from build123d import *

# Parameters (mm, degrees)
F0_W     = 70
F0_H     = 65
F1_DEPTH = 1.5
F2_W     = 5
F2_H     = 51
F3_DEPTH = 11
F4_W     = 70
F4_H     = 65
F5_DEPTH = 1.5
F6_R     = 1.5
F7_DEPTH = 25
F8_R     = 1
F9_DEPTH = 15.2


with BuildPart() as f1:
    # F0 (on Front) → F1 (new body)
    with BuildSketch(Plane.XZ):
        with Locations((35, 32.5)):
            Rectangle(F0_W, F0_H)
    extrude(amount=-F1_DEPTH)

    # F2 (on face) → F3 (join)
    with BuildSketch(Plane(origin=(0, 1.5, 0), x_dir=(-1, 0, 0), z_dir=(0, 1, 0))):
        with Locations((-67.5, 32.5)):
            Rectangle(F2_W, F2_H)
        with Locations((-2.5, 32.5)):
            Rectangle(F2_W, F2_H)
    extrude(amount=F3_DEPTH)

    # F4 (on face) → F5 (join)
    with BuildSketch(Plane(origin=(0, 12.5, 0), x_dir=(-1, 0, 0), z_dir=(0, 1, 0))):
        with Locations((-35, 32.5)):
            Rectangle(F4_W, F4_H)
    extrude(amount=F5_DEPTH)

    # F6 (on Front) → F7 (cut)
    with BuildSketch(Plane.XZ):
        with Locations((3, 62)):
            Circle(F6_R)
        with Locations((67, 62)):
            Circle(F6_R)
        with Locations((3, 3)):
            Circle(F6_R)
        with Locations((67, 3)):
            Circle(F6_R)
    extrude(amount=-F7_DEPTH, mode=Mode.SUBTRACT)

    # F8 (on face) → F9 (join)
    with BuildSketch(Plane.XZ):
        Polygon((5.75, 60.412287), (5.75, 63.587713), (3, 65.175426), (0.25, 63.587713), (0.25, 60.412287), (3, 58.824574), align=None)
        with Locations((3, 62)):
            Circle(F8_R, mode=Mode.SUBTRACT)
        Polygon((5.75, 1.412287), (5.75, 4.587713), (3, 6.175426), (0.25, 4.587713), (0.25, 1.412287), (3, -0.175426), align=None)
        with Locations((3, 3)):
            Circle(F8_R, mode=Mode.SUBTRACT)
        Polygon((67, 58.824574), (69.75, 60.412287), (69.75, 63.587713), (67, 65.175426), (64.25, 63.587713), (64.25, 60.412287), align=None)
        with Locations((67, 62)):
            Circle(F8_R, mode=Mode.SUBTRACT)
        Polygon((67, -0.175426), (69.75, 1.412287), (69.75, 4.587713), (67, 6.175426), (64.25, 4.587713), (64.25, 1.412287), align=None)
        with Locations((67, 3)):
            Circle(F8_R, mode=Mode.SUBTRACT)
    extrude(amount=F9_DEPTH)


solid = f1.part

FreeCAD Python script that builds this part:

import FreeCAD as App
import Part
import Sketcher

V = App.Vector
Q = App.Units.Quantity

doc = App.newDocument("Part")
body = doc.addObject("PartDesign::Body", "Body")

# Sketch on XZ plane
sketch1 = body.newObject("Sketcher::SketchObject", "Sketch")
sketch1.AttachmentSupport = (doc.getObject("XZ_Plane"), [""])
sketch1.MapMode = "FlatFace"
sketch1.addGeometry([
    Part.LineSegment(V(0, 65, 0), V(0, 0, 0)),
    Part.LineSegment(V(0, 0, 0), V(70, 0, 0)),
    Part.LineSegment(V(70, 0, 0), V(70, 65, 0)),
    Part.LineSegment(V(70, 65, 0), V(0, 65, 0)),
], False)
sketch1.addConstraint([
    Sketcher.Constraint("Coincident", 0, 2, 1, 1),
    Sketcher.Constraint("Coincident", 1, 2, 2, 1),
    Sketcher.Constraint("Coincident", 2, 2, 3, 1),
    Sketcher.Constraint("Coincident", 3, 2, 0, 1),
    Sketcher.Constraint("Vertical", 0),
    Sketcher.Constraint("Horizontal", 1),
    Sketcher.Constraint("Vertical", 2),
    Sketcher.Constraint("Horizontal", 3),
    Sketcher.Constraint("Coincident", 0, 2, -1, 1),
    Sketcher.Constraint("DistanceX", 1, 1, 1, 2, Q("70 mm")),
    Sketcher.Constraint("DistanceY", 0, 2, 0, 1, Q("65 mm")),
])
pad1 = body.newObject("PartDesign::Pad", "Pad")
pad1.Profile = sketch1
pad1.Length = 1.5
pad1.Reversed = True

# Sketch on XZ plane
sketch2 = body.newObject("Sketcher::SketchObject", "Sketch001")
sketch2.AttachmentSupport = (doc.getObject("XZ_Plane"), [""])
sketch2.MapMode = "FlatFace"
sketch2.AttachmentOffset = App.Placement(V(0, 0, -1.5), App.Rotation())
sketch2.addGeometry([
    Part.LineSegment(V(70, 58, 0), V(70, 7, 0)),  # 0
    Part.LineSegment(V(70, 7, 0), V(65, 7, 0)),  # 1
    Part.LineSegment(V(65, 7, 0), V(65, 58, 0)),  # 2
    Part.LineSegment(V(65, 58, 0), V(70, 58, 0)),  # 3
    Part.LineSegment(V(5, 58, 0), V(5, 7, 0)),  # 4
    Part.LineSegment(V(5, 7, 0), V(0, 7, 0)),  # 5
    Part.LineSegment(V(0, 7, 0), V(0, 58, 0)),  # 6
    Part.LineSegment(V(0, 58, 0), V(5, 58, 0)),  # 7
], False)
sketch2.addConstraint([
    Sketcher.Constraint("Coincident", 0, 2, 1, 1),
    Sketcher.Constraint("Coincident", 1, 2, 2, 1),
    Sketcher.Constraint("Coincident", 2, 2, 3, 1),
    Sketcher.Constraint("Coincident", 3, 2, 0, 1),
    Sketcher.Constraint("Coincident", 4, 2, 5, 1),
    Sketcher.Constraint("Coincident", 5, 2, 6, 1),
    Sketcher.Constraint("Coincident", 6, 2, 7, 1),
    Sketcher.Constraint("Coincident", 7, 2, 4, 1),
    Sketcher.Constraint("Vertical", 0),
    Sketcher.Constraint("Horizontal", 1),
    Sketcher.Constraint("Vertical", 2),
    Sketcher.Constraint("Horizontal", 3),
    Sketcher.Constraint("Vertical", 4),
    Sketcher.Constraint("Horizontal", 5),
    Sketcher.Constraint("Vertical", 6),
    Sketcher.Constraint("Horizontal", 7),
    Sketcher.Constraint("PointOnObject", 5, 2, -2),
    Sketcher.Constraint("Horizontal", 1, 2, 4, 2),
    Sketcher.Constraint("Horizontal", 3, 2, 6, 2),
    Sketcher.Constraint("Equal", 3, 5),
    Sketcher.Constraint("DistanceX", 1, 2, 1, 1, Q("5 mm")),
    Sketcher.Constraint("DistanceY", 0, 2, 0, 1, Q("51 mm")),
    Sketcher.Constraint("DistanceX", -1, 1, 0, 2, Q("70 mm")),
    Sketcher.Constraint("DistanceY", -1, 1, 0, 2, Q("7 mm")),
])
pad2 = body.newObject("PartDesign::Pad", "Pad001")
pad2.Profile = sketch2
pad2.Length = 11
pad2.Reversed = True

# Sketch on XZ plane
sketch3 = body.newObject("Sketcher::SketchObject", "Sketch002")
sketch3.AttachmentSupport = (doc.getObject("XZ_Plane"), [""])
sketch3.MapMode = "FlatFace"
sketch3.AttachmentOffset = App.Placement(V(0, 0, -12.5), App.Rotation())
sketch3.addGeometry([
    Part.LineSegment(V(70, 65, 0), V(70, 0, 0)),
    Part.LineSegment(V(70, 0, 0), V(0, 0, 0)),
    Part.LineSegment(V(0, 0, 0), V(0, 65, 0)),
    Part.LineSegment(V(0, 65, 0), V(70, 65, 0)),
], False)
sketch3.addConstraint([
    Sketcher.Constraint("Coincident", 0, 2, 1, 1),
    Sketcher.Constraint("Coincident", 1, 2, 2, 1),
    Sketcher.Constraint("Coincident", 2, 2, 3, 1),
    Sketcher.Constraint("Coincident", 3, 2, 0, 1),
    Sketcher.Constraint("Vertical", 0),
    Sketcher.Constraint("Horizontal", 1),
    Sketcher.Constraint("Vertical", 2),
    Sketcher.Constraint("Horizontal", 3),
    Sketcher.Constraint("Coincident", 1, 2, -1, 1),
    Sketcher.Constraint("DistanceX", 1, 2, 1, 1, Q("70 mm")),
    Sketcher.Constraint("DistanceY", 0, 2, 0, 1, Q("65 mm")),
])
pad3 = body.newObject("PartDesign::Pad", "Pad002")
pad3.Profile = sketch3
pad3.Length = 1.5
pad3.Reversed = True

# Sketch on XZ plane
sketch4 = body.newObject("Sketcher::SketchObject", "Sketch003")
sketch4.AttachmentSupport = (doc.getObject("XZ_Plane"), [""])
sketch4.MapMode = "FlatFace"
sketch4.addGeometry([
    Part.Circle(V(3, 62, 0), V(0, 0, 1), 1.5),
    Part.Circle(V(67, 62, 0), V(0, 0, 1), 1.5),
    Part.Circle(V(3, 3, 0), V(0, 0, 1), 1.5),
    Part.Circle(V(67, 3, 0), V(0, 0, 1), 1.5),
], False)
sketch4.addConstraint([
    Sketcher.Constraint("Equal", 0, 1),
    Sketcher.Constraint("Equal", 1, 2),
    Sketcher.Constraint("Equal", 2, 3),
    Sketcher.Constraint("Horizontal", 0, 3, 1, 3),
    Sketcher.Constraint("Horizontal", 2, 3, 3, 3),
    Sketcher.Constraint("Vertical", 0, 3, 2, 3),
    Sketcher.Constraint("Vertical", 1, 3, 3, 3),
    Sketcher.Constraint("Diameter", 0, Q("3 mm")),
    Sketcher.Constraint("DistanceX", -1, 1, 0, 3, Q("3 mm")),
    Sketcher.Constraint("DistanceY", -1, 1, 0, 3, Q("62 mm")),
    Sketcher.Constraint("DistanceX", -1, 1, 1, 3, Q("67 mm")),
    Sketcher.Constraint("DistanceY", -1, 1, 2, 3, Q("3 mm")),
])
pocket1 = body.newObject("PartDesign::Pocket", "Pocket")
pocket1.Profile = sketch4
pocket1.Length = 25

# Sketch on XZ plane
sketch5 = body.newObject("Sketcher::SketchObject", "Sketch004")
sketch5.AttachmentSupport = (doc.getObject("XZ_Plane"), [""])
sketch5.MapMode = "FlatFace"
sketch5.addGeometry([
    Part.LineSegment(V(5.8, 60.4, 0), V(5.8, 63.6, 0)),  # 0
    Part.LineSegment(V(5.8, 63.6, 0), V(3, 65.2, 0)),  # 1
    Part.LineSegment(V(3, 65.2, 0), V(0.2, 63.6, 0)),  # 2
    Part.LineSegment(V(0.2, 63.6, 0), V(0.2, 60.4, 0)),  # 3
    Part.LineSegment(V(0.2, 60.4, 0), V(3, 58.8, 0)),  # 4
    Part.LineSegment(V(3, 58.8, 0), V(5.8, 60.4, 0)),  # 5
    Part.Circle(V(3, 62, 0), V(0, 0, 1), 1),  # 6
    Part.LineSegment(V(5.8, 1.4, 0), V(5.8, 4.6, 0)),  # 7
    Part.LineSegment(V(5.8, 4.6, 0), V(3, 6.2, 0)),  # 8
    Part.LineSegment(V(3, 6.2, 0), V(0.2, 4.6, 0)),  # 9
    Part.LineSegment(V(0.2, 4.6, 0), V(0.2, 1.4, 0)),  # 10
    Part.LineSegment(V(0.2, 1.4, 0), V(3, -0.2, 0)),  # 11
    Part.LineSegment(V(3, -0.2, 0), V(5.8, 1.4, 0)),  # 12
    Part.Circle(V(3, 3, 0), V(0, 0, 1), 1),  # 13
    Part.LineSegment(V(67, 58.8, 0), V(69.8, 60.4, 0)),  # 14
    Part.LineSegment(V(69.8, 60.4, 0), V(69.8, 63.6, 0)),  # 15
    Part.LineSegment(V(69.8, 63.6, 0), V(67, 65.2, 0)),  # 16
    Part.LineSegment(V(67, 65.2, 0), V(64.2, 63.6, 0)),  # 17
    Part.LineSegment(V(64.2, 63.6, 0), V(64.2, 60.4, 0)),  # 18
    Part.LineSegment(V(64.2, 60.4, 0), V(67, 58.8, 0)),  # 19
    Part.Circle(V(67, 62, 0), V(0, 0, 1), 1),  # 20
    Part.LineSegment(V(67, -0.2, 0), V(69.8, 1.4, 0)),  # 21
    Part.LineSegment(V(69.8, 1.4, 0), V(69.8, 4.6, 0)),  # 22
    Part.LineSegment(V(69.8, 4.6, 0), V(67, 6.2, 0)),  # 23
    Part.LineSegment(V(67, 6.2, 0), V(64.2, 4.6, 0)),  # 24
    Part.LineSegment(V(64.2, 4.6, 0), V(64.2, 1.4, 0)),  # 25
    Part.LineSegment(V(64.2, 1.4, 0), V(67, -0.2, 0)),  # 26
    Part.Circle(V(67, 3, 0), V(0, 0, 1), 1),  # 27
], False)
sketch5.addConstraint([
    Sketcher.Constraint("Coincident", 0, 2, 1, 1),
    Sketcher.Constraint("Coincident", 1, 2, 2, 1),
    Sketcher.Constraint("Coincident", 2, 2, 3, 1),
    Sketcher.Constraint("Coincident", 3, 2, 4, 1),
    Sketcher.Constraint("Coincident", 4, 2, 5, 1),
    Sketcher.Constraint("Coincident", 5, 2, 0, 1),
    Sketcher.Constraint("Coincident", 7, 2, 8, 1),
    Sketcher.Constraint("Coincident", 8, 2, 9, 1),
    Sketcher.Constraint("Coincident", 9, 2, 10, 1),
    Sketcher.Constraint("Coincident", 10, 2, 11, 1),
    Sketcher.Constraint("Coincident", 11, 2, 12, 1),
    Sketcher.Constraint("Coincident", 12, 2, 7, 1),
    Sketcher.Constraint("Coincident", 14, 2, 15, 1),
    Sketcher.Constraint("Coincident", 15, 2, 16, 1),
    Sketcher.Constraint("Coincident", 16, 2, 17, 1),
    Sketcher.Constraint("Coincident", 17, 2, 18, 1),
    Sketcher.Constraint("Coincident", 18, 2, 19, 1),
    Sketcher.Constraint("Coincident", 19, 2, 14, 1),
    Sketcher.Constraint("Coincident", 21, 2, 22, 1),
    Sketcher.Constraint("Coincident", 22, 2, 23, 1),
    Sketcher.Constraint("Coincident", 23, 2, 24, 1),
    Sketcher.Constraint("Coincident", 24, 2, 25, 1),
    Sketcher.Constraint("Coincident", 25, 2, 26, 1),
    Sketcher.Constraint("Coincident", 26, 2, 21, 1),
    Sketcher.Constraint("Vertical", 0),
    Sketcher.Constraint("Vertical", 3),
    Sketcher.Constraint("Vertical", 7),
    Sketcher.Constraint("Vertical", 10),
    Sketcher.Constraint("Vertical", 15),
    Sketcher.Constraint("Vertical", 18),
    Sketcher.Constraint("Vertical", 22),
    Sketcher.Constraint("Vertical", 25),
    Sketcher.Constraint("Equal", 6, 13),
    Sketcher.Constraint("Equal", 13, 20),
    Sketcher.Constraint("Equal", 20, 27),
    Sketcher.Constraint("Parallel", 1, 4),
    Sketcher.Constraint("Parallel", 2, 5),
    Sketcher.Constraint("Parallel", 4, 8),
    Sketcher.Constraint("Parallel", 5, 9),
    Sketcher.Constraint("Parallel", 8, 11),
    Sketcher.Constraint("Parallel", 9, 12),
    Sketcher.Constraint("Parallel", 12, 14),
    Sketcher.Constraint("Parallel", 11, 16),
    Sketcher.Constraint("Parallel", 14, 17),
    Sketcher.Constraint("Parallel", 16, 19),
    Sketcher.Constraint("Parallel", 17, 21),
    Sketcher.Constraint("Parallel", 19, 23),
    Sketcher.Constraint("Parallel", 21, 24),
    Sketcher.Constraint("Parallel", 23, 26),
    Sketcher.Constraint("Horizontal", 6, 3, 20, 3),
    Sketcher.Constraint("Horizontal", 13, 3, 27, 3),
    Sketcher.Constraint("Horizontal", 0, 2, 2, 2),
    Sketcher.Constraint("Horizontal", 3, 2, 5, 2),
    Sketcher.Constraint("Horizontal", 7, 2, 9, 2),
    Sketcher.Constraint("Horizontal", 10, 2, 12, 2),
    Sketcher.Constraint("Horizontal", 5, 2, 14, 2),
    Sketcher.Constraint("Horizontal", 2, 2, 15, 2),
    Sketcher.Constraint("Horizontal", 1, 2, 16, 2),
    Sketcher.Constraint("Horizontal", 15, 2, 17, 2),
    Sketcher.Constraint("Horizontal", 14, 2, 18, 2),
    Sketcher.Constraint("Horizontal", 12, 2, 21, 2),
    Sketcher.Constraint("Horizontal", 9, 2, 22, 2),
    Sketcher.Constraint("Horizontal", 8, 2, 23, 2),
    Sketcher.Constraint("Horizontal", 22, 2, 24, 2),
    Sketcher.Constraint("Horizontal", 21, 2, 25, 2),
    Sketcher.Constraint("Vertical", 6, 3, 13, 3),
    Sketcher.Constraint("Vertical", 20, 3, 27, 3),
    Sketcher.Constraint("Vertical", 13, 3, 1, 2),
    Sketcher.Constraint("Vertical", 1, 2, 4, 2),
    Sketcher.Constraint("Vertical", 5, 2, 7, 2),
    Sketcher.Constraint("Vertical", 4, 2, 8, 2),
    Sketcher.Constraint("Vertical", 27, 3, 16, 2),
    Sketcher.Constraint("Vertical", 15, 2, 21, 2),
    Sketcher.Constraint("Equal", 3, 7),
    Sketcher.Constraint("Diameter", 6, Q("2 mm")),
    Sketcher.Constraint("Angle", 1, Q("150.000004 deg")),
    Sketcher.Constraint("DistanceX", -1, 1, 6, 3, Q("3 mm")),
    Sketcher.Constraint("DistanceY", -1, 1, 6, 3, Q("62 mm")),
    Sketcher.Constraint("DistanceY", -1, 1, 13, 3, Q("3 mm")),
    Sketcher.Constraint("DistanceX", -1, 1, 20, 3, Q("67 mm")),
    Sketcher.Constraint("DistanceY", 21, 2, 14, 2, Q("59 mm")),
    Sketcher.Constraint("DistanceX", 2, 2, 0, 2, Q("5.5 mm")),
    Sketcher.Constraint("DistanceY", 0, 1, 0, 2, Q("3.175426 mm")),
    Sketcher.Constraint("DistanceY", -1, 1, 0, 2, Q("63.587713 mm")),
])
pad4 = body.newObject("PartDesign::Pad", "Pad003")
pad4.Profile = sketch5
pad4.Length = 15.2

doc.recompute()
